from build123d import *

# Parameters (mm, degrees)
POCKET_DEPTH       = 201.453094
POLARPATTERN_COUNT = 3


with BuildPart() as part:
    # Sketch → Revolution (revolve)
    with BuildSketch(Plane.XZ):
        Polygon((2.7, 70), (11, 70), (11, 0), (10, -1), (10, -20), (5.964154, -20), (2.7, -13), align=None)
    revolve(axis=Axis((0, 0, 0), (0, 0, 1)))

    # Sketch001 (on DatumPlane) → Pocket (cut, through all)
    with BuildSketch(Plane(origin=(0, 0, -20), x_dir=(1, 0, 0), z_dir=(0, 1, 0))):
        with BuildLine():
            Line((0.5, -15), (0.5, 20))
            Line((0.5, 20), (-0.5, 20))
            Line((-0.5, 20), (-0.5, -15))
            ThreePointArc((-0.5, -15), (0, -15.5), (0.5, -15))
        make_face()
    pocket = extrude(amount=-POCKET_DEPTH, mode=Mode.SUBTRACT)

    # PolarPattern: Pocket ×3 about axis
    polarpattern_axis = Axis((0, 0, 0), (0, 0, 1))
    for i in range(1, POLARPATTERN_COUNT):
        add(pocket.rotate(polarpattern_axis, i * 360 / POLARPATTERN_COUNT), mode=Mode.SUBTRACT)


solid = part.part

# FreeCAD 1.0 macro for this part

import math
import FreeCAD as App
import Part
import Sketcher

V = App.Vector
Q = App.Units.Quantity


def add_polygon(sketch, points):
    """Adds a closed chain of lines whose ends are joined by coincident constraints."""
    first, n = sketch.GeometryCount, len(points)
    for a, b in zip(points, points[1:] + points[:1]):
        sketch.addGeometry(Part.LineSegment(App.Vector(*a, 0), App.Vector(*b, 0)), False)
    for i in range(n):
        sketch.addConstraint(Sketcher.Constraint("Coincident", first + i, 2, first + (i + 1) % n, 1))

doc = App.newDocument("Part")
body = doc.addObject("PartDesign::Body", "Body")

# Sketch on XZ plane
sketch1 = doc.addObject("Sketcher::SketchObject", "Sketch")
body.addObject(sketch1)
sketch1.AttachmentSupport = (doc.XZ_Plane, [""])
sketch1.MapMode = "FlatFace"
add_polygon(sketch1, [(11, 70), (2.7, 70), (2.7, -13), (6, -20), (10, -20), (10, -1), (11, 0)])  # lines 0-6
sketch1.addConstraint([
    Sketcher.Constraint("Horizontal", 0),
    Sketcher.Constraint("Vertical", 1),
    Sketcher.Constraint("Horizontal", 3),
    Sketcher.Constraint("Vertical", 4),
    Sketcher.Constraint("Vertical", 6),
    Sketcher.Constraint("PointOnObject", 5, 2, -1),
    Sketcher.Constraint("DistanceY", 1, 2, 1, 1, 83.0),
    Sketcher.Constraint("DistanceY", 4, 1, 4, 2, 19.0),
    Sketcher.Constraint("DistanceY", 6, 1, 6, 2, 70.0),
    Sketcher.Constraint("Angle", 2, Q("-64.999997 deg")),
    Sketcher.Constraint("Angle", 5, Q("45 deg")),
    Sketcher.Constraint("DistanceX", 0, 2, 0, 1, 8.3),
    Sketcher.Constraint("DistanceY", 2, 2, -1, 1, 20.0),
    Sketcher.Constraint("DistanceX", -1, 1, 3, 2, 10.0),
])
revolution = doc.addObject("PartDesign::Revolution", "Revolution")
body.addObject(revolution)
revolution.Profile = sketch1
revolution.ReferenceAxis = (sketch1, ["V_Axis"])
revolution.Angle = 360

# Sketch on XZ plane
sketch2 = doc.addObject("Sketcher::SketchObject", "Sketch001")
body.addObject(sketch2)
sketch2.AttachmentSupport = (doc.XZ_Plane, [""])
sketch2.MapMode = "FlatFace"
sketch2.addGeometry([
    Part.LineSegment(V(0.5, -5, 0), V(0.5, -40, 0)),
    Part.LineSegment(V(0.5, -40, 0), V(-0.5, -40, 0)),
    Part.LineSegment(V(-0.5, -40, 0), V(-0.5, -5, 0)),
    Part.ArcOfCircle(Part.Circle(V(0, -5, 0), V(0, 0, 1), 0.5), math.radians(0), math.radians(180)),
], False)
sketch2.addConstraint([
    Sketcher.Constraint("Coincident", 0, 2, 1, 1),
    Sketcher.Constraint("Coincident", 1, 2, 2, 1),
    Sketcher.Constraint("Tangent", 2, 2, 3, 2),
    Sketcher.Constraint("Tangent", 3, 1, 0, 1),
    Sketcher.Constraint("Vertical", 0),
    Sketcher.Constraint("Horizontal", 1),
    Sketcher.Constraint("Vertical", 2),
    Sketcher.Constraint("PointOnObject", 3, 3, -2),
    Sketcher.Constraint("Radius", 3, 0.5),
    Sketcher.Constraint("DistanceY", 0, 2, 0, 1, 35.0),
    Sketcher.Constraint("DistanceY", 3, 3, -1, 1, 5.0),
])
pocket1 = doc.addObject("PartDesign::Pocket", "Pocket")
body.addObject(pocket1)
pocket1.Profile = sketch2
pocket1.Type = "ThroughAll"
pocket1.Reversed = True
doc.recompute()

polarpattern = doc.addObject("PartDesign::PolarPattern", "PolarPattern")
body.addObject(polarpattern)
polarpattern.Originals = [pocket1]
polarpattern.Axis = (doc.Z_Axis, [""])
polarpattern.Angle = 360
polarpattern.Occurrences = 3
body.Tip = polarpattern

doc.recompute()
